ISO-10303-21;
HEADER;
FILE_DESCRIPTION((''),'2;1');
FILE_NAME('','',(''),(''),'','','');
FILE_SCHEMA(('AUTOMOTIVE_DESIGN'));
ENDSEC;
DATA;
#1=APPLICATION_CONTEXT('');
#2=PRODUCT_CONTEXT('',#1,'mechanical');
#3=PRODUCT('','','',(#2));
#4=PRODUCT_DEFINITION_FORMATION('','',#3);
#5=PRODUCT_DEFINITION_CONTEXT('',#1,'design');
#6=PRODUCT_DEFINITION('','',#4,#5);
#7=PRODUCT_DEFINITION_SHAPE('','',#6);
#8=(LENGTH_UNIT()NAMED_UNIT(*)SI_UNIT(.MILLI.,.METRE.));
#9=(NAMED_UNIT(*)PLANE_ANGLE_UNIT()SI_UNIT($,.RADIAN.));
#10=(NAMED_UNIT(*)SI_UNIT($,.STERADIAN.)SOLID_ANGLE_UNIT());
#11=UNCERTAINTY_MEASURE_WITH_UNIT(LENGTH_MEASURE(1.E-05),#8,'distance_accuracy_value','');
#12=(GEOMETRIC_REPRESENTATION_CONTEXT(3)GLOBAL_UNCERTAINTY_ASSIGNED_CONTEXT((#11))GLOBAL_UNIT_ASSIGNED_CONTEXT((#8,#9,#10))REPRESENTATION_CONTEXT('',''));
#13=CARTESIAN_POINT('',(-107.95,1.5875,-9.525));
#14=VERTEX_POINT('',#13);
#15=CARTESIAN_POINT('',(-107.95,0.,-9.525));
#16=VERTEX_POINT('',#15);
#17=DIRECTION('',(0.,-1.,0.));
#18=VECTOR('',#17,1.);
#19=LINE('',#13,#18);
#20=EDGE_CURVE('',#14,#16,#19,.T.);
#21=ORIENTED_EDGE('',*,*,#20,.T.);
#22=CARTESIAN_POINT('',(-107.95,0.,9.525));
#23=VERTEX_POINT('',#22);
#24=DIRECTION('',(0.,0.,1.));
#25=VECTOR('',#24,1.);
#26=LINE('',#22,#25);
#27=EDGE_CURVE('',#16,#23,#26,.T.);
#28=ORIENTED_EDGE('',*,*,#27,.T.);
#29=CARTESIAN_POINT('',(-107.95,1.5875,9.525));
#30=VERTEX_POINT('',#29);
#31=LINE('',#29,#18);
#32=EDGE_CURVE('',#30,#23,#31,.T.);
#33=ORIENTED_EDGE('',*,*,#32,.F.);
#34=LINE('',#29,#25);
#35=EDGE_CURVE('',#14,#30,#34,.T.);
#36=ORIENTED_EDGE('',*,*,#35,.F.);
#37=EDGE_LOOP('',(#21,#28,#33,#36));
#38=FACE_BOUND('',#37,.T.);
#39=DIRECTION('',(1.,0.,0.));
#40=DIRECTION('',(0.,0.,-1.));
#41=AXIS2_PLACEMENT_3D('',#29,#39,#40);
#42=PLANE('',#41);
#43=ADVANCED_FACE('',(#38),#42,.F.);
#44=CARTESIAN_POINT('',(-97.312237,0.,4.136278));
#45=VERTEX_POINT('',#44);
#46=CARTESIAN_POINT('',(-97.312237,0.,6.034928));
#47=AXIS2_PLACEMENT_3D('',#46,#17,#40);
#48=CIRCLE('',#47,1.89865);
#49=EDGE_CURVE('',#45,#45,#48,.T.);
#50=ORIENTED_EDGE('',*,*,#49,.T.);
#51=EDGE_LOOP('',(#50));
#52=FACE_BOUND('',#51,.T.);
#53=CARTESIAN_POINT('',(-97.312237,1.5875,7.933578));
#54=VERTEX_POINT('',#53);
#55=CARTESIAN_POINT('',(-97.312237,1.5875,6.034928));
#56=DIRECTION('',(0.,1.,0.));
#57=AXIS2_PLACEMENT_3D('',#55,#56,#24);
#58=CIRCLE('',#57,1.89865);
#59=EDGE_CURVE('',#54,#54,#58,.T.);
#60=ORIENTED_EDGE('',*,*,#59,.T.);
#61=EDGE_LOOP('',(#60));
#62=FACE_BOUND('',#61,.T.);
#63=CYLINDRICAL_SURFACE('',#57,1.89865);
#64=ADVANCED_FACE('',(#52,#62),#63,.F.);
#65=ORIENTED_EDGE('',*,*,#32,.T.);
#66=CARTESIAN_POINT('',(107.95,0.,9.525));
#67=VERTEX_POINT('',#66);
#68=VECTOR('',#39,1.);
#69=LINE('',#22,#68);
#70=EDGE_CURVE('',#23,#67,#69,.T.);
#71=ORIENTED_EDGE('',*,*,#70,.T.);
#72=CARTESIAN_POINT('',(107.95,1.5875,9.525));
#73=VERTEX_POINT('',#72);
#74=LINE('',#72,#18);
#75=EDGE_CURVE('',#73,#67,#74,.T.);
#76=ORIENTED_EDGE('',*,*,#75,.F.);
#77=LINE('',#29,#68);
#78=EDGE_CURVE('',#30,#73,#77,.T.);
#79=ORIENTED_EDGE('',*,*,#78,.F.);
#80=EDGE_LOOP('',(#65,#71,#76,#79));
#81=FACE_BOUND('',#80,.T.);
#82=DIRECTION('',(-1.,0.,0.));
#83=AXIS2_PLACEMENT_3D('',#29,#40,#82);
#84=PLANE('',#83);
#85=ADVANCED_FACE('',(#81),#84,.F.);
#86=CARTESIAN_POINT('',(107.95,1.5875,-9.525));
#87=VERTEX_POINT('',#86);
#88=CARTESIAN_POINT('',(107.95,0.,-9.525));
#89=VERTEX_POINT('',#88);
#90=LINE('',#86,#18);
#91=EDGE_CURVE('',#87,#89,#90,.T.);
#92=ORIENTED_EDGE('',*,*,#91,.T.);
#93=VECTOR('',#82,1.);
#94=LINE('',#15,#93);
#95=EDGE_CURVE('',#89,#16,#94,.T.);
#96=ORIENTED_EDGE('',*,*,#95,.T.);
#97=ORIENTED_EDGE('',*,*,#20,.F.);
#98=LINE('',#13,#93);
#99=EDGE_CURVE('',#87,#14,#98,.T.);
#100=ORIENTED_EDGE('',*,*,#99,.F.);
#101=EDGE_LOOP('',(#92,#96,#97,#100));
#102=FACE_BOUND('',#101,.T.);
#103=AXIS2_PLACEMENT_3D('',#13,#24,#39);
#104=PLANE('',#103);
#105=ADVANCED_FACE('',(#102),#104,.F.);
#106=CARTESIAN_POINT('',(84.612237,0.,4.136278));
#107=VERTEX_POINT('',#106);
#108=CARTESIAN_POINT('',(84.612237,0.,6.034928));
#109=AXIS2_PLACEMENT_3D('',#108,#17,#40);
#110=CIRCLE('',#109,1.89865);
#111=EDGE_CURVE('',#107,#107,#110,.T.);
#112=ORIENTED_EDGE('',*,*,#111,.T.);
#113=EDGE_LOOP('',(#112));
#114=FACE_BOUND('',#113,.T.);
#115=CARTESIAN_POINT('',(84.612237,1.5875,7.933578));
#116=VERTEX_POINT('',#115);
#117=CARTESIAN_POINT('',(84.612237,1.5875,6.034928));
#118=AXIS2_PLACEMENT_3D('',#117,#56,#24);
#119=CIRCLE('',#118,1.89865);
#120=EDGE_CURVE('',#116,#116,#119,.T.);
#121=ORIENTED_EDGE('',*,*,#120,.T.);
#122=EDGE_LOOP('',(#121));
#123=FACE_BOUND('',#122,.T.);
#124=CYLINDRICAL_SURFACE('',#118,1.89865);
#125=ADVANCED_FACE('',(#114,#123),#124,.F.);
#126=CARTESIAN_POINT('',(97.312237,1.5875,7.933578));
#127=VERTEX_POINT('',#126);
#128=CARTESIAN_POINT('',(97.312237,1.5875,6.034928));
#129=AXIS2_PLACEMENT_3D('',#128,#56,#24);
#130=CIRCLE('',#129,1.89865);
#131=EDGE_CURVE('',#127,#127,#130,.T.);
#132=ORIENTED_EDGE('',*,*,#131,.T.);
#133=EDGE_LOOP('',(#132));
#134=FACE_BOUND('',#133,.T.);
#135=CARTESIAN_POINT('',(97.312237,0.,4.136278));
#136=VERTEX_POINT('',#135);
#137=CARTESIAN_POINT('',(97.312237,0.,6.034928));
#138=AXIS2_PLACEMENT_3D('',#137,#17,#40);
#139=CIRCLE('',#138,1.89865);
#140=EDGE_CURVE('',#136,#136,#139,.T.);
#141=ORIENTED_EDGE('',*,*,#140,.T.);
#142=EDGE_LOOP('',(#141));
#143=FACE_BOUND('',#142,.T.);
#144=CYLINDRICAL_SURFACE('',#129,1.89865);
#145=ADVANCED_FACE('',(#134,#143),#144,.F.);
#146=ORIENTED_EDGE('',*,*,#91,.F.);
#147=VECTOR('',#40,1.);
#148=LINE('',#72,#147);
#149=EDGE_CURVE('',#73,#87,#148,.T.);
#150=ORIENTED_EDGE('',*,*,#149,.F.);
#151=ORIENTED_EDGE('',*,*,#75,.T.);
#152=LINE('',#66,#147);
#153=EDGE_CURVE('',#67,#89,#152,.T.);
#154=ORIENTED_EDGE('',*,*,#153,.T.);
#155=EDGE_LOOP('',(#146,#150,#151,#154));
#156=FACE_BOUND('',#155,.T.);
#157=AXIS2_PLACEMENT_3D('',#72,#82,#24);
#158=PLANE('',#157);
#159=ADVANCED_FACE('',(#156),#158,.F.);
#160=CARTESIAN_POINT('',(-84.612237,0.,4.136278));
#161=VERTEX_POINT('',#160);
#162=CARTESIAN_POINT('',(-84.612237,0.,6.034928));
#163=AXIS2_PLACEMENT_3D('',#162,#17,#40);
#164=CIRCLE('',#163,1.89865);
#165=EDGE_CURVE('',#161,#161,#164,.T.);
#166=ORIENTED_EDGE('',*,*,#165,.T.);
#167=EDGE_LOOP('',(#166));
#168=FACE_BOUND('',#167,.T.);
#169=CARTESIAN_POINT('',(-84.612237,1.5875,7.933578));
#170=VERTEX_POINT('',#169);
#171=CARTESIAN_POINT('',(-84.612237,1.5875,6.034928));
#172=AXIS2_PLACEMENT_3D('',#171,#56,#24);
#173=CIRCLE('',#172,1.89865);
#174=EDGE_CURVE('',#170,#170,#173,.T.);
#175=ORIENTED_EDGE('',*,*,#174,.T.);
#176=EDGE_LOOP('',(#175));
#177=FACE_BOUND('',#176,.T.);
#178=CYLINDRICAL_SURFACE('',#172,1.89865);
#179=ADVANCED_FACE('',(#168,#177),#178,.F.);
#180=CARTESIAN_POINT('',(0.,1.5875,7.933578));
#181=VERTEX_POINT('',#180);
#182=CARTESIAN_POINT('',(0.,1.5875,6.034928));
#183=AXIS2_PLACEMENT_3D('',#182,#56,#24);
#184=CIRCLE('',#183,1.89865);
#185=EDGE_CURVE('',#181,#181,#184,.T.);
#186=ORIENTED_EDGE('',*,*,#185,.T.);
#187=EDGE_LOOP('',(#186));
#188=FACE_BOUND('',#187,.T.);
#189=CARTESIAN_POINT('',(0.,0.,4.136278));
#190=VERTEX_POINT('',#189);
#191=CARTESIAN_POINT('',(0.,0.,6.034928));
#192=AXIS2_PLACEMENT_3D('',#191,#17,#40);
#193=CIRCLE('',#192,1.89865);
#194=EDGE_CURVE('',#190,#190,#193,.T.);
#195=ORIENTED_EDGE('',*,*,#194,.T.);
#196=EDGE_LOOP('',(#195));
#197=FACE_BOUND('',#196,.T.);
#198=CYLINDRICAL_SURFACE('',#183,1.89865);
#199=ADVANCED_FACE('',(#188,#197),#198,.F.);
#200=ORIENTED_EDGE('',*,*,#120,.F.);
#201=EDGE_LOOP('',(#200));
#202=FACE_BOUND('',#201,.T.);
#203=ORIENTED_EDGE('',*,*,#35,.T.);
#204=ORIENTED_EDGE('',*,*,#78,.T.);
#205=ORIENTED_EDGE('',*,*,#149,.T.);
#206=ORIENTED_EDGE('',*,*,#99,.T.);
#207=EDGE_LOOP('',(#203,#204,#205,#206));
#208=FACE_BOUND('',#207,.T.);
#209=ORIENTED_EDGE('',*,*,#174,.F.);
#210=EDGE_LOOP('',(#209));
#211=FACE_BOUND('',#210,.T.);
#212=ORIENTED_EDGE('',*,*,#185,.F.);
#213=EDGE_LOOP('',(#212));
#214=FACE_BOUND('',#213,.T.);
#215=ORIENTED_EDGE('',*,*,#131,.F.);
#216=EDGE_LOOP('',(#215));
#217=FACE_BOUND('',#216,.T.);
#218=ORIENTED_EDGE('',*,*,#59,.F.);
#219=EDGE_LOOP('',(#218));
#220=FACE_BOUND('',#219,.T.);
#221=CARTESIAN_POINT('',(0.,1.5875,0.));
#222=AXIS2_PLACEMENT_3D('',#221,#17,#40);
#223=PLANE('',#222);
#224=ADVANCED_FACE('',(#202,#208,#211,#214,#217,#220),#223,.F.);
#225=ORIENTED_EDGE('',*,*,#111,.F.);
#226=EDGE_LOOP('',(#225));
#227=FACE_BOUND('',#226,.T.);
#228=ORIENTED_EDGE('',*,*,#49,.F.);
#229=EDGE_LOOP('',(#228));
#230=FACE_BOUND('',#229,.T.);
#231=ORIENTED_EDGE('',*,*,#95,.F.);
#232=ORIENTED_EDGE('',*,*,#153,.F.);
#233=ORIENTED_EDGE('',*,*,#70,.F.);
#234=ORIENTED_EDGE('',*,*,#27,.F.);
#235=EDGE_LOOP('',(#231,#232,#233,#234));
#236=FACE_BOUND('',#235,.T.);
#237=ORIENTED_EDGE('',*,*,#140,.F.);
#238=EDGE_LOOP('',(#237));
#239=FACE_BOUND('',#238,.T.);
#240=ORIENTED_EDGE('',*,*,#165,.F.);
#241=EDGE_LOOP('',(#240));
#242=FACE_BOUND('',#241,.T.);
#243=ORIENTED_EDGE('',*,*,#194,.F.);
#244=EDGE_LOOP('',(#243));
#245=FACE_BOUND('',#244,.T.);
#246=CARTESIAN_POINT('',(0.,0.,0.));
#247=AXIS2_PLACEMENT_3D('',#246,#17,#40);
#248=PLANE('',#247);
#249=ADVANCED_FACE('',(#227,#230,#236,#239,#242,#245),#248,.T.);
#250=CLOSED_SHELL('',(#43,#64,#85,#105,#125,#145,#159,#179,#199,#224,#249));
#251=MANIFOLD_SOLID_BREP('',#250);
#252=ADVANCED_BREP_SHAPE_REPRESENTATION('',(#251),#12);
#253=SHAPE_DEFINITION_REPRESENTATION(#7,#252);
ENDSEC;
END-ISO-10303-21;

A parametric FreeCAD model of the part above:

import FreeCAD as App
import Part
import Sketcher
from FreeCAD import Vector
Q = App.Units.Quantity


def add_polygon(sketch, points):
    """Adds a closed chain of lines whose ends are joined by coincident constraints."""
    first, n = sketch.GeometryCount, len(points)
    for a, b in zip(points, points[1:] + points[:1]):
        sketch.addGeometry(Part.LineSegment(App.Vector(*a, 0), App.Vector(*b, 0)), False)
    for i in range(n):
        sketch.addConstraint(Sketcher.Constraint("Coincident", first + i, 2, first + (i + 1) % n, 1))

doc = App.newDocument("Part")
body = doc.addObject("PartDesign::Body", "Body")

# Sketch on XZ plane
sketch1 = body.newObject("Sketcher::SketchObject", "Sketch")
sketch1.AttachmentSupport = (doc.getObject("XZ_Plane"), [""])
sketch1.MapMode = "FlatFace"
add_polygon(sketch1, [(-108, -10), (-108, 10), (108, 10), (108, -10)])  # lines 0-3
sketch1.addConstraint([
    Sketcher.Constraint("Vertical", 0),
    Sketcher.Constraint("Horizontal", 1),
    Sketcher.Constraint("Vertical", 2),
    Sketcher.Constraint("Horizontal", 3),
    Sketcher.Constraint("Symmetric", 0, 2, 2, 2, -1, 1),
    Sketcher.Constraint("DistanceX", 1, 1, 1, 2, Q("8.5 in")),
    Sketcher.Constraint("DistanceY", 0, 1, 0, 2, Q("0.75 in")),
])
pad1 = body.newObject("PartDesign::Pad", "Pad")
pad1.Profile = sketch1
pad1.Length = Q("0.0625 in")
pad1.Reversed = True

# Sketch on XZ plane
sketch2 = body.newObject("Sketcher::SketchObject", "Sketch001")
sketch2.AttachmentSupport = (doc.getObject("XZ_Plane"), [""])
sketch2.MapMode = "FlatFace"
sketch2.AttachmentOffset = App.Placement(Vector(0, 0, -0.0625 * 25.4), App.Rotation())
sketch2.addGeometry([
    Part.Circle(Vector(-97.3, 6, 0), Vector(0, 0, 1), 1.9),  # 0
    Part.Circle(Vector(0, 6, 0), Vector(0, 0, 1), 1.9),  # 1
    Part.Circle(Vector(97.3, 6, 0), Vector(0, 0, 1), 1.9),  # 2
    Part.Circle(Vector(-84.6, 6, 0), Vector(0, 0, 1), 1.9),  # 3
    Part.Circle(Vector(84.6, 6, 0), Vector(0, 0, 1), 1.9),  # 4
], False)
sketch2.addConstraint([
    Sketcher.Constraint("Equal", 0, 1),
    Sketcher.Constraint("Equal", 1, 2),
    Sketcher.Constraint("Equal", 2, 3),
    Sketcher.Constraint("Equal", 3, 4),
    Sketcher.Constraint("Symmetric", 0, 3, 2, 3, -2),
    Sketcher.Constraint("Symmetric", 3, 3, 4, 3, -2),
    Sketcher.Constraint("PointOnObject", 1, 3, -2),
    Sketcher.Constraint("Horizontal", 0, 3, 1, 3),
    Sketcher.Constraint("Horizontal", 2, 3, 3, 3),
    Sketcher.Constraint("Diameter", 0, Q("0.1495 in")),
    Sketcher.Constraint("DistanceX", 0, 3, 3, 3, Q("0.5 in")),
    Sketcher.Constraint("DistanceY", -1, 1, 0, 3, Q("6.034928 mm")),
    Sketcher.Constraint("DistanceX", 0, 3, -1, 1, Q("97.312237 mm")),
])
doc.recompute()
hole = body.newObject("PartDesign::Hole", "Hole")
hole.Profile = sketch2
hole.ThreadType = "None"
hole.Diameter = Q("0.1495 in")
hole.DepthType = "ThroughAll"
hole.Reversed = True

doc.recompute()
